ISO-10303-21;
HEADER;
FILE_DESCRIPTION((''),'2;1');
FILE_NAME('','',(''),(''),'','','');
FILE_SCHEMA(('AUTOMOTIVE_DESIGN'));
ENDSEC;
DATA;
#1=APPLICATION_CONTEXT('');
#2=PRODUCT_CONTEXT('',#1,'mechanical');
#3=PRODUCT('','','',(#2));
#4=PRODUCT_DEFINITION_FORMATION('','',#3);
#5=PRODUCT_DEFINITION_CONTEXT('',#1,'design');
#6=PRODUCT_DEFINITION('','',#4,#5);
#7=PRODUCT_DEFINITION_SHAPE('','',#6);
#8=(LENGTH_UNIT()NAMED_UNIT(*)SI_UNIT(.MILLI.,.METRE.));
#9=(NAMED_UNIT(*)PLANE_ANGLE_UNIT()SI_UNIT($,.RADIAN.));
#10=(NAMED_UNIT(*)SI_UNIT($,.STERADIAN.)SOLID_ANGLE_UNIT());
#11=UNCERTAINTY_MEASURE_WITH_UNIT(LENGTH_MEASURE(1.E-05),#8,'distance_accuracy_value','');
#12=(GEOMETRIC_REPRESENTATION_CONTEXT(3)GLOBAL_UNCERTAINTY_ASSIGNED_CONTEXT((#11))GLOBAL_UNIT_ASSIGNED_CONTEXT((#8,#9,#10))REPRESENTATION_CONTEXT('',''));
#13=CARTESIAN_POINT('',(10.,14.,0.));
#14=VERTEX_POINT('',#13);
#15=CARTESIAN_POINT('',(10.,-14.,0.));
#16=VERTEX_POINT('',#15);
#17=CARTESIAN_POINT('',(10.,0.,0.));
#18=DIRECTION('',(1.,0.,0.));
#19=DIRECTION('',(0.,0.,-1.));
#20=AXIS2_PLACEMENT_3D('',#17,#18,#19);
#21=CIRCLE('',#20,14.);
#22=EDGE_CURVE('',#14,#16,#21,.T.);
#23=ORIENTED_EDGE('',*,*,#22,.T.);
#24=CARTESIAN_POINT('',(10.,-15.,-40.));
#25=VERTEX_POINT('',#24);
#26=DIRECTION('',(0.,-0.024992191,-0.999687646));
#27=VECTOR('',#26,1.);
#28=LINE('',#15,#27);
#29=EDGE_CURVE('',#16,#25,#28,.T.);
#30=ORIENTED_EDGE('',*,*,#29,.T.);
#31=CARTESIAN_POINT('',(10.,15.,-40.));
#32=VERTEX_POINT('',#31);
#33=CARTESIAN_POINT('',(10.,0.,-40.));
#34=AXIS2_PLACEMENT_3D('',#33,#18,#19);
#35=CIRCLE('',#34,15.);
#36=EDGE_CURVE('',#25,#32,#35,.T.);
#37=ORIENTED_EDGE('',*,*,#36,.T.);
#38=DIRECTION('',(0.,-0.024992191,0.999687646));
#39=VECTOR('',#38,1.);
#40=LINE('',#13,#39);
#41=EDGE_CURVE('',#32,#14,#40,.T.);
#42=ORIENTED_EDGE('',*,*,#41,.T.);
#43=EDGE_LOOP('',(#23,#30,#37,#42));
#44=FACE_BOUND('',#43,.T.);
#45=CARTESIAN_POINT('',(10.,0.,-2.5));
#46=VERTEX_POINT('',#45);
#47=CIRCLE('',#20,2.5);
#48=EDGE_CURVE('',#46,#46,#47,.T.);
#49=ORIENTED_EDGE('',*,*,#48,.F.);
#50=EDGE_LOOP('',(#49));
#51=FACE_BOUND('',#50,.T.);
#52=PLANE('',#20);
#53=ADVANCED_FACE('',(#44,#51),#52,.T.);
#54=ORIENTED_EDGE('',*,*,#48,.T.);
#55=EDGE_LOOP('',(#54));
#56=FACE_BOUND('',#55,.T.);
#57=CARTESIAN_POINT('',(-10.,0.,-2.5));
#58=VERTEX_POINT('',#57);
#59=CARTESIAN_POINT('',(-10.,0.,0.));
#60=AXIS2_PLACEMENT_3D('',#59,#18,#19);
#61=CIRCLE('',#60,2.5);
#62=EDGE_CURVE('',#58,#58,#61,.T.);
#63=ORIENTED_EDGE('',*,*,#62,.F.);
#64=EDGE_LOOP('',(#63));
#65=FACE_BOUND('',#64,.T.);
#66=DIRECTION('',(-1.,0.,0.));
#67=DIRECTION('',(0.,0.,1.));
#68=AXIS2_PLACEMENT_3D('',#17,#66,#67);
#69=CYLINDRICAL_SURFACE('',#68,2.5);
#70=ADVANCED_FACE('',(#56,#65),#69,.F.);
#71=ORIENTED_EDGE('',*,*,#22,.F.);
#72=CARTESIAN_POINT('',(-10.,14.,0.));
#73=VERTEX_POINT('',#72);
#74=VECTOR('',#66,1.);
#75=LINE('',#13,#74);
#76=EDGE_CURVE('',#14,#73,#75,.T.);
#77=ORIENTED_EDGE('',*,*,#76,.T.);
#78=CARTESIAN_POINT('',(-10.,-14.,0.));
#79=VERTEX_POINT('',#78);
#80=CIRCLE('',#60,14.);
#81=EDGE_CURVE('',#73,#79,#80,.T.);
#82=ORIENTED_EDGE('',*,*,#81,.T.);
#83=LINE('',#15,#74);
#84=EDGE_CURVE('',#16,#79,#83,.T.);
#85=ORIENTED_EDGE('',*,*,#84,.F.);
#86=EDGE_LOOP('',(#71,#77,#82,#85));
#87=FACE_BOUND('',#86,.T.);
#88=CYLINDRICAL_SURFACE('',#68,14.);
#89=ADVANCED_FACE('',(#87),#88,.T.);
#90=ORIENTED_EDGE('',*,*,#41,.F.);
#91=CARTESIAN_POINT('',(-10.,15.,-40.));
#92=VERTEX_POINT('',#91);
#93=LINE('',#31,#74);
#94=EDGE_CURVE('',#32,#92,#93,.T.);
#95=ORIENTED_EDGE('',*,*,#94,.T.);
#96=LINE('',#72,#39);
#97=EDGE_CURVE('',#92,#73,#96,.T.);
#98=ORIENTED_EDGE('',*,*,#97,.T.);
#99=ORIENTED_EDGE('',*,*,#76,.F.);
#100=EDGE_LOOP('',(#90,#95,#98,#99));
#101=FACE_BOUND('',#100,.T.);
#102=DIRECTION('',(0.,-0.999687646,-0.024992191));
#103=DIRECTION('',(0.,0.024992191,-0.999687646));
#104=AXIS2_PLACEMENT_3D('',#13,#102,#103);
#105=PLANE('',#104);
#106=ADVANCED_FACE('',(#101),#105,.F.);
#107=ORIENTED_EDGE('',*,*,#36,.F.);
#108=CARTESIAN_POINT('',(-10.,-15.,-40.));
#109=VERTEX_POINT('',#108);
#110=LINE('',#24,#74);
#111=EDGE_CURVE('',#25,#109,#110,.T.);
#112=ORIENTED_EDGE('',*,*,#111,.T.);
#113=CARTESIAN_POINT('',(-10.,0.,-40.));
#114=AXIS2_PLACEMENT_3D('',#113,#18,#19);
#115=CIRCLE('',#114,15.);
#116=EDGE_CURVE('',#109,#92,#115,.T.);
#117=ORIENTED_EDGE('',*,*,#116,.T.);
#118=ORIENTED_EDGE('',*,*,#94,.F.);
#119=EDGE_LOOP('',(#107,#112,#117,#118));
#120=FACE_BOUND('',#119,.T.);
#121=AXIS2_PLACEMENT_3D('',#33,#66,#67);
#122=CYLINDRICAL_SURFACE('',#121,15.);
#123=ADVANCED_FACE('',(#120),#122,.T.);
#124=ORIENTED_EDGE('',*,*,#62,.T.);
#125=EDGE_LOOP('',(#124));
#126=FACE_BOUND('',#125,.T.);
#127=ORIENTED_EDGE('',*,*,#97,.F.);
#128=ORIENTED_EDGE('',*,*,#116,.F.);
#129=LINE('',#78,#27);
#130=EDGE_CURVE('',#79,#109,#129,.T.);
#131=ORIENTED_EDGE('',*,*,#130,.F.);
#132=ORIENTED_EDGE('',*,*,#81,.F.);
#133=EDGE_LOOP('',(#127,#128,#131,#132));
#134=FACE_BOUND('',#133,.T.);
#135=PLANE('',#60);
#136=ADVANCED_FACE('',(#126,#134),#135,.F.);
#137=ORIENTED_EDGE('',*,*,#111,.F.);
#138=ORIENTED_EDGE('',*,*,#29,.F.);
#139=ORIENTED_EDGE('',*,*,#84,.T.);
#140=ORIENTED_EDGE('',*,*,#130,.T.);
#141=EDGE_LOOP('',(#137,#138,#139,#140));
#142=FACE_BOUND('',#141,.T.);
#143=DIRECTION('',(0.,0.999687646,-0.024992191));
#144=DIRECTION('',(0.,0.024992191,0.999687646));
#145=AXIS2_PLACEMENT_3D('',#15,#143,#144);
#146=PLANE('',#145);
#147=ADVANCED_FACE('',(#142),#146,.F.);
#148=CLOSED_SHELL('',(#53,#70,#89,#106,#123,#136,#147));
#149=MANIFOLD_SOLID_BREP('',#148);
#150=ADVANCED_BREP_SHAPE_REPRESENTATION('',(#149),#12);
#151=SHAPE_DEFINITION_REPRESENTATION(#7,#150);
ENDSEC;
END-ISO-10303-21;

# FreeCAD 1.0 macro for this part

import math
import FreeCAD as App
import Part
import Sketcher

V = App.Vector
Q = App.Units.Quantity

doc = App.newDocument("Part")
params = doc.addObject("Spreadsheet::Sheet", "Params")
for row, (alias, value) in enumerate([
    ("sketch1_diameter", "5 mm"),
    ("sketch1_radius", "14 mm"),
    ("sketch1_radius2", "15 mm"),
    ("pad1_length", "20 mm"),
], start=1):
    params.set(f"A{row}", alias)
    params.set(f"B{row}", "=" + value)
    params.setAlias(f"B{row}", alias)

body = doc.addObject("PartDesign::Body", "Body")

sketch1 = doc.addObject("Sketcher::SketchObject", "Sketch")
body.addObject(sketch1)
sketch1.AttachmentSupport = (doc.YZ_Plane, [""])
sketch1.MapMode = "FlatFace"
sketch1.addGeometry([
    Part.LineSegment(V(15, -40, 0), V(14, 0, 0)),
    Part.ArcOfCircle(Part.Circle(V(0, 0, 0), V(0, 0, 1), 14), math.radians(0), math.radians(180)),
    Part.LineSegment(V(-14, 0, 0), V(-15, -40, 0)),
    Part.ArcOfCircle(Part.Circle(V(0, -40, 0), V(0, 0, 1), 15), math.radians(180), math.radians(360)),
    Part.Circle(V(0, 0, 0), V(0, 0, 1), 2.5),
], False)
sketch1.addConstraint([
    Sketcher.Constraint("Coincident", 0, 2, 1, 1),
    Sketcher.Constraint("Coincident", 1, 2, 2, 1),
    Sketcher.Constraint("Coincident", 2, 2, 3, 1),
    Sketcher.Constraint("Coincident", 3, 2, 0, 1),
    Sketcher.Constraint("Coincident", 1, 3, -1, 1),
    Sketcher.Constraint("Coincident", 4, 3, -1, 1),
    Sketcher.Constraint("Symmetric", 2, 2, 3, 2, -2),
    Sketcher.Constraint("PointOnObject", 0, 2, -1),
    Sketcher.Constraint("PointOnObject", 1, 2, -1),
    Sketcher.Constraint("Horizontal", 3, 3, 2, 2),
    Sketcher.Constraint("Diameter", 4, Q("5 mm")),
    Sketcher.Constraint("Radius", 1, Q("14 mm")),
    Sketcher.Constraint("Radius", 3, Q("15 mm")),
    Sketcher.Constraint("DistanceY", 3, 3, -1, 1, Q("40 mm")),
])
sketch1.setExpression("Constraints[10]", "Params.sketch1_diameter")
sketch1.setExpression("Constraints[11]", "Params.sketch1_radius")
sketch1.setExpression("Constraints[12]", "Params.sketch1_radius2")
pad1 = doc.addObject("PartDesign::Pad", "Pad")
body.addObject(pad1)
pad1.Profile = sketch1
pad1.setExpression("Length", "Params.pad1_length")
pad1.Midplane = True

doc.recompute()
